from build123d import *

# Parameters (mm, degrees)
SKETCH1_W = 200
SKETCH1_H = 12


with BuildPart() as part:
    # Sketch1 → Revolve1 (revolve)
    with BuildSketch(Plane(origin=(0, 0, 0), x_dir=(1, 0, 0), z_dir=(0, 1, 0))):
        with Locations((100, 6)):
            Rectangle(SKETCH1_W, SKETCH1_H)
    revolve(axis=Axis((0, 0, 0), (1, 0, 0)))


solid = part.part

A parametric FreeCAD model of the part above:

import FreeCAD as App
import Part
import Sketcher

V = App.Vector
Q = App.Units.Quantity


def add_polygon(sketch, points):
    """Adds a closed chain of lines whose ends are joined by coincident constraints."""
    first, n = sketch.GeometryCount, len(points)
    for a, b in zip(points, points[1:] + points[:1]):
        sketch.addGeometry(Part.LineSegment(App.Vector(*a, 0), App.Vector(*b, 0)), False)
    for i in range(n):
        sketch.addConstraint(Sketcher.Constraint("Coincident", first + i, 2, first + (i + 1) % n, 1))

doc = App.newDocument("Part")
body = doc.addObject("PartDesign::Body", "Body")

sketch1 = doc.addObject("Sketcher::SketchObject", "Sketch")
body.addObject(sketch1)
sketch1.AttachmentSupport = (doc.XZ_Plane, [""])
sketch1.MapMode = "FlatFace"
add_polygon(sketch1, [(0, -12), (0, 0), (200, 0), (200, -12)])
sketch1.addConstraint([
    Sketcher.Constraint("Vertical", 0),
    Sketcher.Constraint("Horizontal", 1),
    Sketcher.Constraint("Vertical", 2),
    Sketcher.Constraint("Horizontal", 3),
    Sketcher.Constraint("Coincident", 0, 2, -1, 1),
    Sketcher.Constraint("DistanceX", 1, 1, 1, 2, Q("200 mm")),
    Sketcher.Constraint("DistanceY", 0, 1, 0, 2, Q("12 mm")),
])
revolution = doc.addObject("PartDesign::Revolution", "Revolution")
body.addObject(revolution)
revolution.Profile = sketch1
revolution.ReferenceAxis = (sketch1, ["H_Axis"])
revolution.Angle = 360

doc.recompute()
